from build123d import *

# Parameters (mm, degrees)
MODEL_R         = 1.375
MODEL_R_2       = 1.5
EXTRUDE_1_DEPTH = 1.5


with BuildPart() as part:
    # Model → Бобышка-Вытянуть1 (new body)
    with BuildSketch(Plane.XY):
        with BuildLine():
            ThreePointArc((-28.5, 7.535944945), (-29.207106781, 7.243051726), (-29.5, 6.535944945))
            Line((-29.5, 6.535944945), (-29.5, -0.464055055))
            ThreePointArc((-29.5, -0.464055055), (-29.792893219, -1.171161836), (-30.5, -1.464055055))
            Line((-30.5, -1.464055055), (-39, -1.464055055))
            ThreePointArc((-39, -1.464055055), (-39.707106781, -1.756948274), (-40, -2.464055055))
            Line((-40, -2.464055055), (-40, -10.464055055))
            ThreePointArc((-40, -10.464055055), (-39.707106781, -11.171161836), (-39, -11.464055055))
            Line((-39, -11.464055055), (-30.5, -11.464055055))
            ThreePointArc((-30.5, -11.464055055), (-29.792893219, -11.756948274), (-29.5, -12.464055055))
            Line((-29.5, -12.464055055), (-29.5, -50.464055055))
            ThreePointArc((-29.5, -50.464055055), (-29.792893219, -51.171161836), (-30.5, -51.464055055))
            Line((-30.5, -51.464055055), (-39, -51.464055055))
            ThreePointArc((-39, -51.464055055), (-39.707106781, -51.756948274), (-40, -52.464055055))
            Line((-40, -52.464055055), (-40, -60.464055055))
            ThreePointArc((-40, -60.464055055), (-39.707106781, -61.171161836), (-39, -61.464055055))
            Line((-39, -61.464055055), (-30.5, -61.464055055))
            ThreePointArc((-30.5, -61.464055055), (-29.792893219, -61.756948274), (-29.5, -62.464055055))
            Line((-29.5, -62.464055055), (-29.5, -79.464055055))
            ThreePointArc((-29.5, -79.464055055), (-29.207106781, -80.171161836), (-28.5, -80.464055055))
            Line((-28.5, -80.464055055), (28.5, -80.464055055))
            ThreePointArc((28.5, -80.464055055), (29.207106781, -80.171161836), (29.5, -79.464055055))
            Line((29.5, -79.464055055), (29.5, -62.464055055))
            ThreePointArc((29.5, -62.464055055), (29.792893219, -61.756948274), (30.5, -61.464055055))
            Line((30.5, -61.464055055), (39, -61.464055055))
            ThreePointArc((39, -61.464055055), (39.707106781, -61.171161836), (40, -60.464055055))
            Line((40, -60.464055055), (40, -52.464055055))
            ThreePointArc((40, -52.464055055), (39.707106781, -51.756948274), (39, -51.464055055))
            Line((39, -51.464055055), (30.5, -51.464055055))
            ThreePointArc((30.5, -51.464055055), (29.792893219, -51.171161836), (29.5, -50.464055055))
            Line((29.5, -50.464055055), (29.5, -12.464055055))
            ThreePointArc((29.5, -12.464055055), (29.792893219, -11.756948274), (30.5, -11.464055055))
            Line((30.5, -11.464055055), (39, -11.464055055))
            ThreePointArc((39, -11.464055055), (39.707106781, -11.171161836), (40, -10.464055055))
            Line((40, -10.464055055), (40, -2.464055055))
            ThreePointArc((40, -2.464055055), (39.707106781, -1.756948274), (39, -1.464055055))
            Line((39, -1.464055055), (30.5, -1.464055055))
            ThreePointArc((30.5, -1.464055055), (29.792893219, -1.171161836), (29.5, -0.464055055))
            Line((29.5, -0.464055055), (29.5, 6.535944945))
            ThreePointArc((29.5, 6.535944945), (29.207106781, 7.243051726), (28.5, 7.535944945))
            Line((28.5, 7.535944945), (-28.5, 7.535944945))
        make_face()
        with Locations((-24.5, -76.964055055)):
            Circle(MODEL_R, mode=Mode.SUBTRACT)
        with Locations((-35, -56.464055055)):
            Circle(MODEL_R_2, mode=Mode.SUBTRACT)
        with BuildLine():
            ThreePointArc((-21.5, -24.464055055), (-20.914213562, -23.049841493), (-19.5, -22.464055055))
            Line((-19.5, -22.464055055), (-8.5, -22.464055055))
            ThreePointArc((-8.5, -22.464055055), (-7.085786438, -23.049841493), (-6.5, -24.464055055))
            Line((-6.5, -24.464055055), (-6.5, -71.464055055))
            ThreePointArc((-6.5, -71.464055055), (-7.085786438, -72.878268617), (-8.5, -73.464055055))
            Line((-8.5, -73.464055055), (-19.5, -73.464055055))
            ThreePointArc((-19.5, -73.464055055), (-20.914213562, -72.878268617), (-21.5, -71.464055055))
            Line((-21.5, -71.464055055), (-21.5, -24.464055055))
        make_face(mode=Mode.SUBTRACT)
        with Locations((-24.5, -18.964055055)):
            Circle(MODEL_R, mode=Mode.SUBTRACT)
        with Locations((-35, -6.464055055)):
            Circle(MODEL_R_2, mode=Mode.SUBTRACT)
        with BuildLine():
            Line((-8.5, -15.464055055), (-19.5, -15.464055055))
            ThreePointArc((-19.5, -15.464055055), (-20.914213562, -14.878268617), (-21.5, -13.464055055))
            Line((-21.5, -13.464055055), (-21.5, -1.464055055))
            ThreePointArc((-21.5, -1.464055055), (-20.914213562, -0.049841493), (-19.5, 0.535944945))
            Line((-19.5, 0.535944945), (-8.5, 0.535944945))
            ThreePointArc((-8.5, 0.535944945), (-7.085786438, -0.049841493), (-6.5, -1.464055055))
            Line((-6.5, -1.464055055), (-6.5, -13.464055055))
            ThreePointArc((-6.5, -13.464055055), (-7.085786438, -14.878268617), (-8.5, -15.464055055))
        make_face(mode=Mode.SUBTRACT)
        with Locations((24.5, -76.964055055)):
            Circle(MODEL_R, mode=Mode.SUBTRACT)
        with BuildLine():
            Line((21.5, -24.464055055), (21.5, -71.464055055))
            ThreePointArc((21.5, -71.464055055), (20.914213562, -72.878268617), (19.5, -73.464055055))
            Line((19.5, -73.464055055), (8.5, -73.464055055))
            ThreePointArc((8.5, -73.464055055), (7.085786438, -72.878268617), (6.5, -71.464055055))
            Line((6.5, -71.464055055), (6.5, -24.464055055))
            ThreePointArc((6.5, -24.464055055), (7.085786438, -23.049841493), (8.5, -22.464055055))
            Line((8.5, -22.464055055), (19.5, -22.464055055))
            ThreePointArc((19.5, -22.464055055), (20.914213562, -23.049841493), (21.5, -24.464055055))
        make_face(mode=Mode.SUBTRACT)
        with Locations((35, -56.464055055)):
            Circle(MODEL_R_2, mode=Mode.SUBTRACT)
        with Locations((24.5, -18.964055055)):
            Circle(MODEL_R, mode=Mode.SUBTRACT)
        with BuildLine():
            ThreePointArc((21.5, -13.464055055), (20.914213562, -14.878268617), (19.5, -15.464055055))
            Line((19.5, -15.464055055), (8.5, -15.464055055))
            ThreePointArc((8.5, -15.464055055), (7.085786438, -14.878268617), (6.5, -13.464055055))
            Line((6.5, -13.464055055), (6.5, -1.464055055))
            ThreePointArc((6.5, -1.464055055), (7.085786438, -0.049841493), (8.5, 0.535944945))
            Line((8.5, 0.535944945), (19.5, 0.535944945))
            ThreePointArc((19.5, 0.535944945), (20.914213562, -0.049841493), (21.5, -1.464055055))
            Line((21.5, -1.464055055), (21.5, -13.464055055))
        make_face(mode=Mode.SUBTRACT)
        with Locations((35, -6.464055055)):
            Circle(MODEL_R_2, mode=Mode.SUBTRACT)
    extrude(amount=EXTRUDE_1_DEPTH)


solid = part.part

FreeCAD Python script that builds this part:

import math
import FreeCAD as App
import Part
import Sketcher
from FreeCAD import Vector
Q = App.Units.Quantity

doc = App.newDocument("Part")
body = doc.addObject("PartDesign::Body", "Body")

# Sketch on XY plane
sketch1 = body.newObject("Sketcher::SketchObject", "Sketch")
sketch1.AttachmentSupport = (doc.getObject("XY_Plane"), [""])
sketch1.MapMode = "FlatFace"
sketch1.addGeometry([
    Part.ArcOfCircle(Part.Circle(Vector(-28.5, 6.535945, 0), Vector(0, 0, 1), 1), math.radians(90), math.radians(180)),  # 0
    Part.LineSegment(Vector(-29.5, 6.535945, 0), Vector(-29.5, -0.464055, 0)),  # 1
    Part.ArcOfCircle(Part.Circle(Vector(-30.5, -0.464055, 0), Vector(0, 0, 1), 1), math.radians(-90), math.radians(0)),  # 2
    Part.LineSegment(Vector(-30.5, -1.464055, 0), Vector(-39, -1.464055, 0)),  # 3
    Part.ArcOfCircle(Part.Circle(Vector(-39, -2.464055, 0), Vector(0, 0, 1), 1), math.radians(90), math.radians(180)),  # 4
    Part.LineSegment(Vector(-40, -2.464055, 0), Vector(-40, -10.464055, 0)),  # 5
    Part.ArcOfCircle(Part.Circle(Vector(-39, -10.464055, 0), Vector(0, 0, 1), 1), math.radians(-180), math.radians(-90)),  # 6
    Part.LineSegment(Vector(-39, -11.464055, 0), Vector(-30.5, -11.464055, 0)),  # 7
    Part.ArcOfCircle(Part.Circle(Vector(-30.5, -12.464055, 0), Vector(0, 0, 1), 1), math.radians(0), math.radians(90)),  # 8
    Part.LineSegment(Vector(-29.5, -12.464055, 0), Vector(-29.5, -50.464055, 0)),  # 9
    Part.ArcOfCircle(Part.Circle(Vector(-30.5, -50.464055, 0), Vector(0, 0, 1), 1), math.radians(-90), math.radians(0)),  # 10
    Part.LineSegment(Vector(-30.5, -51.464055, 0), Vector(-39, -51.464055, 0)),  # 11
    Part.ArcOfCircle(Part.Circle(Vector(-39, -52.464055, 0), Vector(0, 0, 1), 1), math.radians(90), math.radians(180)),  # 12
    Part.LineSegment(Vector(-40, -52.464055, 0), Vector(-40, -60.464055, 0)),  # 13
    Part.ArcOfCircle(Part.Circle(Vector(-39, -60.464055, 0), Vector(0, 0, 1), 1), math.radians(-180), math.radians(-90)),  # 14
    Part.LineSegment(Vector(-39, -61.464055, 0), Vector(-30.5, -61.464055, 0)),  # 15
    Part.ArcOfCircle(Part.Circle(Vector(-30.5, -62.464055, 0), Vector(0, 0, 1), 1), math.radians(0), math.radians(90)),  # 16
    Part.LineSegment(Vector(-29.5, -62.464055, 0), Vector(-29.5, -79.464055, 0)),  # 17
    Part.ArcOfCircle(Part.Circle(Vector(-28.5, -79.464055, 0), Vector(0, 0, 1), 1), math.radians(-180), math.radians(-90)),  # 18
    Part.LineSegment(Vector(-28.5, -80.464055, 0), Vector(28.5, -80.464055, 0)),  # 19
    Part.ArcOfCircle(Part.Circle(Vector(28.5, -79.464055, 0), Vector(0, 0, 1), 1), math.radians(-90), math.radians(0)),  # 20
    Part.LineSegment(Vector(29.5, -79.464055, 0), Vector(29.5, -62.464055, 0)),  # 21
    Part.ArcOfCircle(Part.Circle(Vector(30.5, -62.464055, 0), Vector(0, 0, 1), 1), math.radians(90), math.radians(180)),  # 22
    Part.LineSegment(Vector(30.5, -61.464055, 0), Vector(39, -61.464055, 0)),  # 23
    Part.ArcOfCircle(Part.Circle(Vector(39, -60.464055, 0), Vector(0, 0, 1), 1), math.radians(-90), math.radians(0)),  # 24
    Part.LineSegment(Vector(40, -60.464055, 0), Vector(40, -52.464055, 0)),  # 25
    Part.ArcOfCircle(Part.Circle(Vector(39, -52.464055, 0), Vector(0, 0, 1), 1), math.radians(0), math.radians(90)),  # 26
    Part.LineSegment(Vector(39, -51.464055, 0), Vector(30.5, -51.464055, 0)),  # 27
    Part.ArcOfCircle(Part.Circle(Vector(30.5, -50.464055, 0), Vector(0, 0, 1), 1), math.radians(-180), math.radians(-90)),  # 28
    Part.LineSegment(Vector(29.5, -50.464055, 0), Vector(29.5, -12.464055, 0)),  # 29
    Part.ArcOfCircle(Part.Circle(Vector(30.5, -12.464055, 0), Vector(0, 0, 1), 1), math.radians(90), math.radians(180)),  # 30
    Part.LineSegment(Vector(30.5, -11.464055, 0), Vector(39, -11.464055, 0)),  # 31
    Part.ArcOfCircle(Part.Circle(Vector(39, -10.464055, 0), Vector(0, 0, 1), 1), math.radians(-90), math.radians(0)),  # 32
    Part.LineSegment(Vector(40, -10.464055, 0), Vector(40, -2.464055, 0)),  # 33
    Part.ArcOfCircle(Part.Circle(Vector(39, -2.464055, 0), Vector(0, 0, 1), 1), math.radians(0), math.radians(90)),  # 34
    Part.LineSegment(Vector(39, -1.464055, 0), Vector(30.5, -1.464055, 0)),  # 35
    Part.ArcOfCircle(Part.Circle(Vector(30.5, -0.464055, 0), Vector(0, 0, 1), 1), math.radians(-180), math.radians(-90)),  # 36
    Part.LineSegment(Vector(29.5, -0.464055, 0), Vector(29.5, 6.535945, 0)),  # 37
    Part.ArcOfCircle(Part.Circle(Vector(28.5, 6.535945, 0), Vector(0, 0, 1), 1), math.radians(0), math.radians(90)),  # 38
    Part.LineSegment(Vector(28.5, 7.535945, 0), Vector(-28.5, 7.535945, 0)),  # 39
    Part.Circle(Vector(-24.5, -76.964055, 0), Vector(0, 0, 1), 1.375),  # 40
    Part.Circle(Vector(-35, -56.464055, 0), Vector(0, 0, 1), 1.5),  # 41
    Part.LineSegment(Vector(-21.5, -71.464055, 0), Vector(-21.5, -24.464055, 0)),  # 42
    Part.ArcOfCircle(Part.Circle(Vector(-19.5, -24.464055, 0), Vector(0, 0, 1), 2), math.radians(90), math.radians(180)),  # 43
    Part.LineSegment(Vector(-19.5, -22.464055, 0), Vector(-8.5, -22.464055, 0)),  # 44
    Part.ArcOfCircle(Part.Circle(Vector(-8.5, -24.464055, 0), Vector(0, 0, 1), 2), math.radians(0), math.radians(90)),  # 45
    Part.LineSegment(Vector(-6.5, -24.464055, 0), Vector(-6.5, -71.464055, 0)),  # 46
    Part.ArcOfCircle(Part.Circle(Vector(-8.5, -71.464055, 0), Vector(0, 0, 1), 2), math.radians(-90), math.radians(0)),  # 47
    Part.LineSegment(Vector(-8.5, -73.464055, 0), Vector(-19.5, -73.464055, 0)),  # 48
    Part.ArcOfCircle(Part.Circle(Vector(-19.5, -71.464055, 0), Vector(0, 0, 1), 2), math.radians(-180), math.radians(-90)),  # 49
    Part.Circle(Vector(24.5, -76.964055, 0), Vector(0, 0, 1), 1.375),  # 50
    Part.ArcOfCircle(Part.Circle(Vector(19.5, -24.464055, 0), Vector(0, 0, 1), 2), math.radians(0), math.radians(90)),  # 51
    Part.LineSegment(Vector(21.5, -24.464055, 0), Vector(21.5, -71.464055, 0)),  # 52
    Part.ArcOfCircle(Part.Circle(Vector(19.5, -71.464055, 0), Vector(0, 0, 1), 2), math.radians(-90), math.radians(0)),  # 53
    Part.LineSegment(Vector(19.5, -73.464055, 0), Vector(8.5, -73.464055, 0)),  # 54
    Part.ArcOfCircle(Part.Circle(Vector(8.5, -71.464055, 0), Vector(0, 0, 1), 2), math.radians(-180), math.radians(-90)),  # 55
    Part.LineSegment(Vector(6.5, -71.464055, 0), Vector(6.5, -24.464055, 0)),  # 56
    Part.ArcOfCircle(Part.Circle(Vector(8.5, -24.464055, 0), Vector(0, 0, 1), 2), math.radians(90), math.radians(180)),  # 57
    Part.LineSegment(Vector(8.5, -22.464055, 0), Vector(19.5, -22.464055, 0)),  # 58
    Part.Circle(Vector(35, -56.464055, 0), Vector(0, 0, 1), 1.5),  # 59
    Part.Circle(Vector(-24.5, -18.964055, 0), Vector(0, 0, 1), 1.375),  # 60
    Part.Circle(Vector(-35, -6.464055, 0), Vector(0, 0, 1), 1.5),  # 61
    Part.ArcOfCircle(Part.Circle(Vector(-8.5, -13.464055, 0), Vector(0, 0, 1), 2), math.radians(-90), math.radians(0)),  # 62
    Part.LineSegment(Vector(-8.5, -15.464055, 0), Vector(-19.5, -15.464055, 0)),  # 63
    Part.ArcOfCircle(Part.Circle(Vector(-19.5, -13.464055, 0), Vector(0, 0, 1), 2), math.radians(-180), math.radians(-90)),  # 64
    Part.LineSegment(Vector(-21.5, -13.464055, 0), Vector(-21.5, -1.464055, 0)),  # 65
    Part.ArcOfCircle(Part.Circle(Vector(-19.5, -1.464055, 0), Vector(0, 0, 1), 2), math.radians(90), math.radians(180)),  # 66
    Part.LineSegment(Vector(-19.5, 0.535945, 0), Vector(-8.5, 0.535945, 0)),  # 67
    Part.ArcOfCircle(Part.Circle(Vector(-8.5, -1.464055, 0), Vector(0, 0, 1), 2), math.radians(0), math.radians(90)),  # 68
    Part.LineSegment(Vector(-6.5, -1.464055, 0), Vector(-6.5, -13.464055, 0)),  # 69
    Part.LineSegment(Vector(21.5, -1.464055, 0), Vector(21.5, -13.464055, 0)),  # 70
    Part.ArcOfCircle(Part.Circle(Vector(19.5, -13.464055, 0), Vector(0, 0, 1), 2), math.radians(-90), math.radians(0)),  # 71
    Part.LineSegment(Vector(19.5, -15.464055, 0), Vector(8.5, -15.464055, 0)),  # 72
    Part.ArcOfCircle(Part.Circle(Vector(8.5, -13.464055, 0), Vector(0, 0, 1), 2), math.radians(-180), math.radians(-90)),  # 73
    Part.LineSegment(Vector(6.5, -13.464055, 0), Vector(6.5, -1.464055, 0)),  # 74
    Part.ArcOfCircle(Part.Circle(Vector(8.5, -1.464055, 0), Vector(0, 0, 1), 2), math.radians(90), math.radians(180)),  # 75
    Part.LineSegment(Vector(8.5, 0.535945, 0), Vector(19.5, 0.535945, 0)),  # 76
    Part.ArcOfCircle(Part.Circle(Vector(19.5, -1.464055, 0), Vector(0, 0, 1), 2), math.radians(0), math.radians(90)),  # 77
    Part.Circle(Vector(24.5, -18.964055, 0), Vector(0, 0, 1), 1.375),  # 78
    Part.Circle(Vector(35, -6.464055, 0), Vector(0, 0, 1), 1.5),  # 79
], False)
sketch1.addConstraint([
    Sketcher.Constraint("Tangent", 0, 2, 1, 1),
    Sketcher.Constraint("Tangent", 1, 2, 2, 2),
    Sketcher.Constraint("Tangent", 2, 1, 3, 1),
    Sketcher.Constraint("Tangent", 3, 2, 4, 1),
    Sketcher.Constraint("Tangent", 4, 2, 5, 1),
    Sketcher.Constraint("Tangent", 5, 2, 6, 1),
    Sketcher.Constraint("Tangent", 6, 2, 7, 1),
    Sketcher.Constraint("Tangent", 7, 2, 8, 2),
    Sketcher.Constraint("Tangent", 8, 1, 9, 1),
    Sketcher.Constraint("Tangent", 9, 2, 10, 2),
    Sketcher.Constraint("Tangent", 10, 1, 11, 1),
    Sketcher.Constraint("Tangent", 11, 2, 12, 1),
    Sketcher.Constraint("Tangent", 12, 2, 13, 1),
    Sketcher.Constraint("Tangent", 13, 2, 14, 1),
    Sketcher.Constraint("Tangent", 14, 2, 15, 1),
    Sketcher.Constraint("Tangent", 15, 2, 16, 2),
    Sketcher.Constraint("Tangent", 16, 1, 17, 1),
    Sketcher.Constraint("Tangent", 17, 2, 18, 1),
    Sketcher.Constraint("Tangent", 18, 2, 19, 1),
    Sketcher.Constraint("Tangent", 19, 2, 20, 1),
    Sketcher.Constraint("Tangent", 20, 2, 21, 1),
    Sketcher.Constraint("Tangent", 21, 2, 22, 2),
    Sketcher.Constraint("Tangent", 22, 1, 23, 1),
    Sketcher.Constraint("Tangent", 23, 2, 24, 1),
    Sketcher.Constraint("Tangent", 24, 2, 25, 1),
    Sketcher.Constraint("Tangent", 25, 2, 26, 1),
    Sketcher.Constraint("Tangent", 26, 2, 27, 1),
    Sketcher.Constraint("Tangent", 27, 2, 28, 2),
    Sketcher.Constraint("Tangent", 28, 1, 29, 1),
    Sketcher.Constraint("Tangent", 29, 2, 30, 2),
    Sketcher.Constraint("Tangent", 30, 1, 31, 1),
    Sketcher.Constraint("Tangent", 31, 2, 32, 1),
    Sketcher.Constraint("Tangent", 32, 2, 33, 1),
    Sketcher.Constraint("Tangent", 33, 2, 34, 1),
    Sketcher.Constraint("Tangent", 34, 2, 35, 1),
    Sketcher.Constraint("Tangent", 35, 2, 36, 2),
    Sketcher.Constraint("Tangent", 36, 1, 37, 1),
    Sketcher.Constraint("Tangent", 37, 2, 38, 1),
    Sketcher.Constraint("Tangent", 38, 2, 39, 1),
    Sketcher.Constraint("Tangent", 39, 2, 0, 1),
    Sketcher.Constraint("Tangent", 42, 2, 43, 2),
    Sketcher.Constraint("Tangent", 43, 1, 44, 1),
    Sketcher.Constraint("Tangent", 44, 2, 45, 2),
    Sketcher.Constraint("Tangent", 45, 1, 46, 1),
    Sketcher.Constraint("Tangent", 46, 2, 47, 2),
    Sketcher.Constraint("Tangent", 47, 1, 48, 1),
    Sketcher.Constraint("Tangent", 48, 2, 49, 2),
    Sketcher.Constraint("Tangent", 49, 1, 42, 1),
    Sketcher.Constraint("Tangent", 51, 1, 52, 1),
    Sketcher.Constraint("Tangent", 52, 2, 53, 2),
    Sketcher.Constraint("Tangent", 53, 1, 54, 1),
    Sketcher.Constraint("Tangent", 54, 2, 55, 2),
    Sketcher.Constraint("Tangent", 55, 1, 56, 1),
    Sketcher.Constraint("Tangent", 56, 2, 57, 2),
    Sketcher.Constraint("Tangent", 57, 1, 58, 1),
    Sketcher.Constraint("Tangent", 58, 2, 51, 2),
    Sketcher.Constraint("Tangent", 62, 1, 63, 1),
    Sketcher.Constraint("Tangent", 63, 2, 64, 2),
    Sketcher.Constraint("Tangent", 64, 1, 65, 1),
    Sketcher.Constraint("Tangent", 65, 2, 66, 2),
    Sketcher.Constraint("Tangent", 66, 1, 67, 1),
    Sketcher.Constraint("Tangent", 67, 2, 68, 2),
    Sketcher.Constraint("Tangent", 68, 1, 69, 1),
    Sketcher.Constraint("Tangent", 69, 2, 62, 2),
    Sketcher.Constraint("Tangent", 70, 2, 71, 2),
    Sketcher.Constraint("Tangent", 71, 1, 72, 1),
    Sketcher.Constraint("Tangent", 72, 2, 73, 2),
    Sketcher.Constraint("Tangent", 73, 1, 74, 1),
    Sketcher.Constraint("Tangent", 74, 2, 75, 2),
    Sketcher.Constraint("Tangent", 75, 1, 76, 1),
    Sketcher.Constraint("Tangent", 76, 2, 77, 2),
    Sketcher.Constraint("Tangent", 77, 1, 70, 1),
    Sketcher.Constraint("Vertical", 1),
    Sketcher.Constraint("Horizontal", 3),
    Sketcher.Constraint("Vertical", 5),
    Sketcher.Constraint("Horizontal", 7),
    Sketcher.Constraint("Vertical", 9),
    Sketcher.Constraint("Horizontal", 11),
    Sketcher.Constraint("Vertical", 13),
    Sketcher.Constraint("Horizontal", 15),
    Sketcher.Constraint("Vertical", 17),
    Sketcher.Constraint("Horizontal", 19),
    Sketcher.Constraint("Vertical", 21),
    Sketcher.Constraint("Horizontal", 23),
    Sketcher.Constraint("Vertical", 25),
    Sketcher.Constraint("Horizontal", 27),
    Sketcher.Constraint("Vertical", 29),
    Sketcher.Constraint("Horizontal", 31),
    Sketcher.Constraint("Vertical", 33),
    Sketcher.Constraint("Horizontal", 35),
    Sketcher.Constraint("Vertical", 37),
    Sketcher.Constraint("Horizontal", 39),
    Sketcher.Constraint("Vertical", 42),
    Sketcher.Constraint("Horizontal", 44),
    Sketcher.Constraint("Vertical", 46),
    Sketcher.Constraint("Horizontal", 48),
    Sketcher.Constraint("Vertical", 52),
    Sketcher.Constraint("Horizontal", 54),
    Sketcher.Constraint("Vertical", 56),
    Sketcher.Constraint("Horizontal", 58),
    Sketcher.Constraint("Horizontal", 63),
    Sketcher.Constraint("Vertical", 65),
    Sketcher.Constraint("Horizontal", 67),
    Sketcher.Constraint("Vertical", 69),
    Sketcher.Constraint("Vertical", 70),
    Sketcher.Constraint("Horizontal", 72),
    Sketcher.Constraint("Vertical", 74),
    Sketcher.Constraint("Horizontal", 76),
    Sketcher.Constraint("Equal", 0, 2),
    Sketcher.Constraint("Equal", 2, 4),
    Sketcher.Constraint("Equal", 4, 6),
    Sketcher.Constraint("Equal", 6, 8),
    Sketcher.Constraint("Equal", 8, 10),
    Sketcher.Constraint("Equal", 10, 12),
    Sketcher.Constraint("Equal", 12, 14),
    Sketcher.Constraint("Equal", 14, 16),
    Sketcher.Constraint("Equal", 16, 18),
    Sketcher.Constraint("Equal", 18, 20),
    Sketcher.Constraint("Equal", 20, 22),
    Sketcher.Constraint("Equal", 22, 24),
    Sketcher.Constraint("Equal", 24, 26),
    Sketcher.Constraint("Equal", 26, 28),
    Sketcher.Constraint("Equal", 28, 30),
    Sketcher.Constraint("Equal", 30, 32),
    Sketcher.Constraint("Equal", 32, 34),
    Sketcher.Constraint("Equal", 34, 36),
    Sketcher.Constraint("Equal", 36, 38),
    Sketcher.Constraint("Equal", 43, 45),
    Sketcher.Constraint("Equal", 45, 47),
    Sketcher.Constraint("Equal", 47, 49),
    Sketcher.Constraint("Equal", 40, 50),
    Sketcher.Constraint("Equal", 49, 51),
    Sketcher.Constraint("Equal", 51, 53),
    Sketcher.Constraint("Equal", 53, 55),
    Sketcher.Constraint("Equal", 55, 57),
    Sketcher.Constraint("Equal", 41, 59),
    Sketcher.Constraint("Equal", 50, 60),
    Sketcher.Constraint("Equal", 59, 61),
    Sketcher.Constraint("Equal", 57, 62),
    Sketcher.Constraint("Equal", 62, 64),
    Sketcher.Constraint("Equal", 64, 66),
    Sketcher.Constraint("Equal", 66, 68),
    Sketcher.Constraint("Equal", 68, 71),
    Sketcher.Constraint("Equal", 71, 73),
    Sketcher.Constraint("Equal", 73, 75),
    Sketcher.Constraint("Equal", 75, 77),
    Sketcher.Constraint("Equal", 60, 78),
    Sketcher.Constraint("Equal", 61, 79),
    Sketcher.Constraint("Symmetric", 16, 3, 22, 3, -2),
    Sketcher.Constraint("Symmetric", 12, 3, 26, 3, -2),
    Sketcher.Constraint("Symmetric", 8, 3, 30, 3, -2),
    Sketcher.Constraint("Symmetric", 4, 3, 34, 3, -2),
    Sketcher.Constraint("Symmetric", 40, 3, 50, 3, -2),
    Sketcher.Constraint("Symmetric", 43, 3, 51, 3, -2),
    Sketcher.Constraint("Symmetric", 47, 3, 55, 3, -2),
    Sketcher.Constraint("Symmetric", 41, 3, 59, 3, -2),
    Sketcher.Constraint("Symmetric", 64, 3, 71, 3, -2),
    Sketcher.Constraint("Symmetric", 68, 3, 75, 3, -2),
    Sketcher.Constraint("Symmetric", 60, 3, 78, 3, -2),
    Sketcher.Constraint("Symmetric", 61, 3, 79, 3, -2),
    Sketcher.Constraint("Horizontal", 77, 3, 2, 1),
    Sketcher.Constraint("Vertical", 2, 3, 8, 3),
    Sketcher.Constraint("Vertical", 6, 3, 12, 3),
    Sketcher.Constraint("Vertical", 10, 3, 16, 3),
    Sketcher.Constraint("Vertical", 30, 3, 36, 3),
    Sketcher.Constraint("Vertical", 40, 3, 60, 3),
    Sketcher.Constraint("Vertical", 41, 3, 61, 3),
    Sketcher.Constraint("Vertical", 47, 3, 62, 3),
    Sketcher.Constraint("Vertical", 49, 3, 64, 3),
    Sketcher.Constraint("Equal", 5, 13),
    Sketcher.Constraint("Diameter", 41, Q("3 mm")),
    Sketcher.Constraint("Radius", 0, Q("1 mm")),
    Sketcher.Constraint("Radius", 43, Q("2 mm")),
    Sketcher.Constraint("Diameter", 40, Q("2.75 mm")),
    Sketcher.Constraint("DistanceX", 19, 1, 19, 2, Q("57 mm")),
    Sketcher.Constraint("DistanceX", 44, 1, 44, 2, Q("11 mm")),
    Sketcher.Constraint("DistanceY", 1, 2, 1, 1, Q("7 mm")),
    Sketcher.Constraint("DistanceY", 5, 2, 5, 1, Q("8 mm")),
    Sketcher.Constraint("DistanceY", 9, 2, 9, 1, Q("38 mm")),
    Sketcher.Constraint("DistanceY", 17, 2, 17, 1, Q("17 mm")),
    Sketcher.Constraint("DistanceY", 42, 1, 42, 2, Q("47 mm")),
    Sketcher.Constraint("DistanceY", 65, 1, 65, 2, Q("12 mm")),
    Sketcher.Constraint("DistanceX", 3, 2, 3, 1, Q("8.5 mm")),
    Sketcher.Constraint("DistanceX", 41, 3, -1, 1, Q("35 mm")),
    Sketcher.Constraint("DistanceX", 40, 3, -1, 1, Q("24.5 mm")),
    Sketcher.Constraint("DistanceX", 43, 3, -1, 1, Q("19.5 mm")),
    Sketcher.Constraint("DistanceY", -1, 1, 0, 3, Q("6.535945 mm")),
    Sketcher.Constraint("DistanceY", 40, 3, -1, 1, Q("76.964055 mm")),
    Sketcher.Constraint("DistanceY", 41, 3, -1, 1, Q("56.464055 mm")),
    Sketcher.Constraint("DistanceY", 43, 3, -1, 1, Q("24.464055 mm")),
    Sketcher.Constraint("DistanceY", 60, 3, -1, 1, Q("18.964055 mm")),
    Sketcher.Constraint("DistanceY", 61, 3, -1, 1, Q("6.464055 mm")),
])
pad1 = body.newObject("PartDesign::Pad", "Pad")
pad1.Profile = sketch1
pad1.Length = 1.5

doc.recompute()
